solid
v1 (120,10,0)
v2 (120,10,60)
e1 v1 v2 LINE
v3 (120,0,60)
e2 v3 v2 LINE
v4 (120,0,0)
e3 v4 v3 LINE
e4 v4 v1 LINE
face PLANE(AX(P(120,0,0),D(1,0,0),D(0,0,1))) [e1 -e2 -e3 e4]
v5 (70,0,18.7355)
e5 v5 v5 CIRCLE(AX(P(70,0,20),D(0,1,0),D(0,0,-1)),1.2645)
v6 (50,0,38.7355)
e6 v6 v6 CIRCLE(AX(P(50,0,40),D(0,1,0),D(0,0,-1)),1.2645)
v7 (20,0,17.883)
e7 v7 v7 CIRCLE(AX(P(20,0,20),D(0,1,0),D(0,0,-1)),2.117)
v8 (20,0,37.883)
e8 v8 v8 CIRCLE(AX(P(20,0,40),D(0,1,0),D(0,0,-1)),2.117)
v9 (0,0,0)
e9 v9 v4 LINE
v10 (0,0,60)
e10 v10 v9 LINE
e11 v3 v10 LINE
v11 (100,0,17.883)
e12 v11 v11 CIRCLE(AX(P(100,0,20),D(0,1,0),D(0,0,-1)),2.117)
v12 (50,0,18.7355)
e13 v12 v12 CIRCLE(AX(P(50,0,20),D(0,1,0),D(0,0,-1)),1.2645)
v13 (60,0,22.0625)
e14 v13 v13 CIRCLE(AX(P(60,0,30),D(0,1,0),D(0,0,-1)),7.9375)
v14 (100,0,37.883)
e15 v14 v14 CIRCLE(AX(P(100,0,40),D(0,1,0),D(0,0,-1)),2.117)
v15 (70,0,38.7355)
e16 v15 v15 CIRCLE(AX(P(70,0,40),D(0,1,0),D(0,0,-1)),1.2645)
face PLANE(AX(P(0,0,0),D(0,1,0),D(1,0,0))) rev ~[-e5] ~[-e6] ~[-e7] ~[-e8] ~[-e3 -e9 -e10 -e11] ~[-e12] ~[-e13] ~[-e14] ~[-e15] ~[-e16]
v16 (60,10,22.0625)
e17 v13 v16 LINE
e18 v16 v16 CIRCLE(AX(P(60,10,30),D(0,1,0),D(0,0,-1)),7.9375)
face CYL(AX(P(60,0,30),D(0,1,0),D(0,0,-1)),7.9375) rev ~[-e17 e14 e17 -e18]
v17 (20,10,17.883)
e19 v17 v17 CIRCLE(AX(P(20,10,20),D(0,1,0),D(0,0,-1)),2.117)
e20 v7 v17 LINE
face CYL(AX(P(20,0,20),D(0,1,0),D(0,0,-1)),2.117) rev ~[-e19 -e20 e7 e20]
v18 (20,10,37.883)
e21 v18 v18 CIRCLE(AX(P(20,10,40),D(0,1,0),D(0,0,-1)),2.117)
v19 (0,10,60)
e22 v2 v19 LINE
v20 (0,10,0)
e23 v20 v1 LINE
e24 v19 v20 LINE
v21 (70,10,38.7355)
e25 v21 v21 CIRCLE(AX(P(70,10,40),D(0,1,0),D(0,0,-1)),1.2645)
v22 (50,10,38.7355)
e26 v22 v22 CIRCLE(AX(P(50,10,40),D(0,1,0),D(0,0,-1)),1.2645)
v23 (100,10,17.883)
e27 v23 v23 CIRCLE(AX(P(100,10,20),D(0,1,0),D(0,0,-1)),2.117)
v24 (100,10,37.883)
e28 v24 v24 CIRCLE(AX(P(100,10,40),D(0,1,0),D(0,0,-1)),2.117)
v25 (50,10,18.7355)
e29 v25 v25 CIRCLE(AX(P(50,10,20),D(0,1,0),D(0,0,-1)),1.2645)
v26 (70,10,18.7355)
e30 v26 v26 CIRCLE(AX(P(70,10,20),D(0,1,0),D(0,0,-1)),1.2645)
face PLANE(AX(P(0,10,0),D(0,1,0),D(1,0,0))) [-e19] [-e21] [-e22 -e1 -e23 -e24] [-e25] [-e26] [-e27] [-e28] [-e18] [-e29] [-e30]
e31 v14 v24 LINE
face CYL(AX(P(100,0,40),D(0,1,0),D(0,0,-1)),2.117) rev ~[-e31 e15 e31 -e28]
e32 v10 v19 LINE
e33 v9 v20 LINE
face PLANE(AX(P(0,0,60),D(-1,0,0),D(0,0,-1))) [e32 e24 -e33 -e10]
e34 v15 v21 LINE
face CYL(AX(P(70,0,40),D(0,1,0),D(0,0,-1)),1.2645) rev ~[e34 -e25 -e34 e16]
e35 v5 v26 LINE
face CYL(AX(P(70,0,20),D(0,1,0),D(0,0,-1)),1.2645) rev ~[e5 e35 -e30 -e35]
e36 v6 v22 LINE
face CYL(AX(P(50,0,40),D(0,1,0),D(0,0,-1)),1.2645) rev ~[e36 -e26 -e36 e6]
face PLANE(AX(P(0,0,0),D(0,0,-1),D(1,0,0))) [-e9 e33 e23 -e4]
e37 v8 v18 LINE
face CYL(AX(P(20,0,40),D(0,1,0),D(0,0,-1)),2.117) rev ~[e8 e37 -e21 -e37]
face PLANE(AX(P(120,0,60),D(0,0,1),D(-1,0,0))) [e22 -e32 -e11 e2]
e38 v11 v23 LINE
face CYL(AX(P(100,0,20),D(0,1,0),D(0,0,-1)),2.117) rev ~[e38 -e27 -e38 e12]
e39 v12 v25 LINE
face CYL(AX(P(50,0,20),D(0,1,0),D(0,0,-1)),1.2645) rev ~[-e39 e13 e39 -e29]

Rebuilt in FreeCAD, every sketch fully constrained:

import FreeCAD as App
import Part
import Sketcher
from FreeCAD import Vector
Q = App.Units.Quantity


def add_polygon(sketch, points):
    """Adds a closed chain of lines whose ends are joined by coincident constraints."""
    first, n = sketch.GeometryCount, len(points)
    for a, b in zip(points, points[1:] + points[:1]):
        sketch.addGeometry(Part.LineSegment(App.Vector(*a, 0), App.Vector(*b, 0)), False)
    for i in range(n):
        sketch.addConstraint(Sketcher.Constraint("Coincident", first + i, 2, first + (i + 1) % n, 1))

doc = App.newDocument("Part")
params = doc.addObject("Spreadsheet::Sheet", "Params")
for row, (alias, value) in enumerate([
    ("sketch1_width", "120 mm"),
    ("sketch1_height", "60 mm"),
    ("pad1_length", "10 mm"),
    ("hole_diameter", "15.875 mm"),
    ("hole_depth", "25 mm"),
    ("hole2_diameter", "4.234 mm"),
    ("hole2_depth", "25 mm"),
    ("hole3_diameter", "2.529 mm"),
    ("hole3_depth", "90 mm"),
], start=1):
    params.set(f"A{row}", alias)
    params.set(f"B{row}", "=" + value)
    params.setAlias(f"B{row}", alias)

body = doc.addObject("PartDesign::Body", "Body")

sketch1 = body.newObject("Sketcher::SketchObject", "Sketch")
sketch1.AttachmentSupport = (doc.getObject("XZ_Plane"), [""])
sketch1.MapMode = "FlatFace"
add_polygon(sketch1, [(120, 0), (0, 0), (0, 60), (120, 60)])
sketch1.addConstraint([
    Sketcher.Constraint("Horizontal", 0),
    Sketcher.Constraint("Vertical", 1),
    Sketcher.Constraint("Horizontal", 2),
    Sketcher.Constraint("Vertical", 3),
    Sketcher.Constraint("Coincident", 0, 2, -1, 1),
    Sketcher.Constraint("DistanceX", 0, 2, 0, 1, Q("120 mm")),
    Sketcher.Constraint("DistanceY", 1, 1, 1, 2, Q("60 mm")),
])
sketch1.setExpression("Constraints[9]", "Params.sketch1_width")
sketch1.setExpression("Constraints[10]", "Params.sketch1_height")
pad1 = body.newObject("PartDesign::Pad", "Pad")
pad1.Profile = sketch1
pad1.setExpression("Length", "Params.pad1_length")
pad1.Reversed = True

sketch2 = body.newObject("Sketcher::SketchObject", "Sketch001")
sketch2.AttachmentSupport = (doc.getObject("XZ_Plane"), [""])
sketch2.MapMode = "FlatFace"
sketch2.addGeometry(Part.Circle(Vector(60, 30, 0), Vector(0, 0, 1), 8), False)
sketch2.addConstraint([
    Sketcher.Constraint("Diameter", 0, Q("15.875 mm")),
    Sketcher.Constraint("DistanceX", -1, 1, 0, 3, Q("60 mm")),
    Sketcher.Constraint("DistanceY", -1, 1, 0, 3, Q("30 mm")),
])
doc.recompute()
hole = body.newObject("PartDesign::Hole", "Hole")
hole.Profile = sketch2
hole.ThreadType = "None"
hole.setExpression("Diameter", "Params.hole_diameter")
hole.DepthType = "Dimension"
hole.setExpression("Depth", "Params.hole_depth")
hole.DrillPoint = "Angled"
hole.DrillPointAngle = 118

sketch3 = body.newObject("Sketcher::SketchObject", "Sketch002")
sketch3.AttachmentSupport = (doc.getObject("XZ_Plane"), [""])
sketch3.MapMode = "FlatFace"
sketch3.addGeometry([
    Part.Circle(Vector(20, 40, 0), Vector(0, 0, 1), 2.1),
    Part.Circle(Vector(100, 40, 0), Vector(0, 0, 1), 2.1),
    Part.Circle(Vector(100, 20, 0), Vector(0, 0, 1), 2.1),
    Part.Circle(Vector(20, 20, 0), Vector(0, 0, 1), 2.1),
], False)
sketch3.addConstraint([
    Sketcher.Constraint("Equal", 0, 1),
    Sketcher.Constraint("Equal", 1, 2),
    Sketcher.Constraint("Equal", 2, 3),
    Sketcher.Constraint("Horizontal", 0, 3, 1, 3),
    Sketcher.Constraint("Horizontal", 2, 3, 3, 3),
    Sketcher.Constraint("Vertical", 1, 3, 2, 3),
    Sketcher.Constraint("Vertical", 0, 3, 3, 3),
    Sketcher.Constraint("Diameter", 0, Q("4.234 mm")),
    Sketcher.Constraint("DistanceX", -1, 1, 0, 3, Q("20 mm")),
    Sketcher.Constraint("DistanceY", -1, 1, 0, 3, Q("40 mm")),
    Sketcher.Constraint("DistanceX", -1, 1, 1, 3, Q("100 mm")),
    Sketcher.Constraint("DistanceY", -1, 1, 2, 3, Q("20 mm")),
])
doc.recompute()
hole2 = body.newObject("PartDesign::Hole", "Hole001")
hole2.Profile = sketch3
hole2.ThreadType = "None"
hole2.setExpression("Diameter", "Params.hole2_diameter")
hole2.DepthType = "Dimension"
hole2.setExpression("Depth", "Params.hole2_depth")
hole2.DrillPoint = "Angled"
hole2.DrillPointAngle = 118

sketch4 = body.newObject("Sketcher::SketchObject", "Sketch003")
sketch4.AttachmentSupport = (doc.getObject("XZ_Plane"), [""])
sketch4.MapMode = "FlatFace"
sketch4.addGeometry([
    Part.Circle(Vector(70, 40, 0), Vector(0, 0, 1), 1.3),
    Part.Circle(Vector(70, 20, 0), Vector(0, 0, 1), 1.3),
    Part.Circle(Vector(50, 40, 0), Vector(0, 0, 1), 1.3),
    Part.Circle(Vector(50, 20, 0), Vector(0, 0, 1), 1.3),
], False)
sketch4.addConstraint([
    Sketcher.Constraint("Equal", 0, 1),
    Sketcher.Constraint("Equal", 1, 2),
    Sketcher.Constraint("Equal", 2, 3),
    Sketcher.Constraint("Horizontal", 0, 3, 2, 3),
    Sketcher.Constraint("Horizontal", 1, 3, 3, 3),
    Sketcher.Constraint("Vertical", 0, 3, 1, 3),
    Sketcher.Constraint("Vertical", 2, 3, 3, 3),
    Sketcher.Constraint("Diameter", 0, Q("2.529 mm")),
    Sketcher.Constraint("DistanceX", -1, 1, 0, 3, Q("70 mm")),
    Sketcher.Constraint("DistanceY", -1, 1, 0, 3, Q("40 mm")),
    Sketcher.Constraint("DistanceY", -1, 1, 1, 3, Q("20 mm")),
    Sketcher.Constraint("DistanceX", -1, 1, 2, 3, Q("50 mm")),
])
doc.recompute()
hole3 = body.newObject("PartDesign::Hole", "Hole002")
hole3.Profile = sketch4
hole3.ThreadType = "None"
hole3.setExpression("Diameter", "Params.hole3_diameter")
hole3.DepthType = "Dimension"
hole3.setExpression("Depth", "Params.hole3_depth")
hole3.DrillPoint = "Angled"
hole3.DrillPointAngle = 118

doc.recompute()
